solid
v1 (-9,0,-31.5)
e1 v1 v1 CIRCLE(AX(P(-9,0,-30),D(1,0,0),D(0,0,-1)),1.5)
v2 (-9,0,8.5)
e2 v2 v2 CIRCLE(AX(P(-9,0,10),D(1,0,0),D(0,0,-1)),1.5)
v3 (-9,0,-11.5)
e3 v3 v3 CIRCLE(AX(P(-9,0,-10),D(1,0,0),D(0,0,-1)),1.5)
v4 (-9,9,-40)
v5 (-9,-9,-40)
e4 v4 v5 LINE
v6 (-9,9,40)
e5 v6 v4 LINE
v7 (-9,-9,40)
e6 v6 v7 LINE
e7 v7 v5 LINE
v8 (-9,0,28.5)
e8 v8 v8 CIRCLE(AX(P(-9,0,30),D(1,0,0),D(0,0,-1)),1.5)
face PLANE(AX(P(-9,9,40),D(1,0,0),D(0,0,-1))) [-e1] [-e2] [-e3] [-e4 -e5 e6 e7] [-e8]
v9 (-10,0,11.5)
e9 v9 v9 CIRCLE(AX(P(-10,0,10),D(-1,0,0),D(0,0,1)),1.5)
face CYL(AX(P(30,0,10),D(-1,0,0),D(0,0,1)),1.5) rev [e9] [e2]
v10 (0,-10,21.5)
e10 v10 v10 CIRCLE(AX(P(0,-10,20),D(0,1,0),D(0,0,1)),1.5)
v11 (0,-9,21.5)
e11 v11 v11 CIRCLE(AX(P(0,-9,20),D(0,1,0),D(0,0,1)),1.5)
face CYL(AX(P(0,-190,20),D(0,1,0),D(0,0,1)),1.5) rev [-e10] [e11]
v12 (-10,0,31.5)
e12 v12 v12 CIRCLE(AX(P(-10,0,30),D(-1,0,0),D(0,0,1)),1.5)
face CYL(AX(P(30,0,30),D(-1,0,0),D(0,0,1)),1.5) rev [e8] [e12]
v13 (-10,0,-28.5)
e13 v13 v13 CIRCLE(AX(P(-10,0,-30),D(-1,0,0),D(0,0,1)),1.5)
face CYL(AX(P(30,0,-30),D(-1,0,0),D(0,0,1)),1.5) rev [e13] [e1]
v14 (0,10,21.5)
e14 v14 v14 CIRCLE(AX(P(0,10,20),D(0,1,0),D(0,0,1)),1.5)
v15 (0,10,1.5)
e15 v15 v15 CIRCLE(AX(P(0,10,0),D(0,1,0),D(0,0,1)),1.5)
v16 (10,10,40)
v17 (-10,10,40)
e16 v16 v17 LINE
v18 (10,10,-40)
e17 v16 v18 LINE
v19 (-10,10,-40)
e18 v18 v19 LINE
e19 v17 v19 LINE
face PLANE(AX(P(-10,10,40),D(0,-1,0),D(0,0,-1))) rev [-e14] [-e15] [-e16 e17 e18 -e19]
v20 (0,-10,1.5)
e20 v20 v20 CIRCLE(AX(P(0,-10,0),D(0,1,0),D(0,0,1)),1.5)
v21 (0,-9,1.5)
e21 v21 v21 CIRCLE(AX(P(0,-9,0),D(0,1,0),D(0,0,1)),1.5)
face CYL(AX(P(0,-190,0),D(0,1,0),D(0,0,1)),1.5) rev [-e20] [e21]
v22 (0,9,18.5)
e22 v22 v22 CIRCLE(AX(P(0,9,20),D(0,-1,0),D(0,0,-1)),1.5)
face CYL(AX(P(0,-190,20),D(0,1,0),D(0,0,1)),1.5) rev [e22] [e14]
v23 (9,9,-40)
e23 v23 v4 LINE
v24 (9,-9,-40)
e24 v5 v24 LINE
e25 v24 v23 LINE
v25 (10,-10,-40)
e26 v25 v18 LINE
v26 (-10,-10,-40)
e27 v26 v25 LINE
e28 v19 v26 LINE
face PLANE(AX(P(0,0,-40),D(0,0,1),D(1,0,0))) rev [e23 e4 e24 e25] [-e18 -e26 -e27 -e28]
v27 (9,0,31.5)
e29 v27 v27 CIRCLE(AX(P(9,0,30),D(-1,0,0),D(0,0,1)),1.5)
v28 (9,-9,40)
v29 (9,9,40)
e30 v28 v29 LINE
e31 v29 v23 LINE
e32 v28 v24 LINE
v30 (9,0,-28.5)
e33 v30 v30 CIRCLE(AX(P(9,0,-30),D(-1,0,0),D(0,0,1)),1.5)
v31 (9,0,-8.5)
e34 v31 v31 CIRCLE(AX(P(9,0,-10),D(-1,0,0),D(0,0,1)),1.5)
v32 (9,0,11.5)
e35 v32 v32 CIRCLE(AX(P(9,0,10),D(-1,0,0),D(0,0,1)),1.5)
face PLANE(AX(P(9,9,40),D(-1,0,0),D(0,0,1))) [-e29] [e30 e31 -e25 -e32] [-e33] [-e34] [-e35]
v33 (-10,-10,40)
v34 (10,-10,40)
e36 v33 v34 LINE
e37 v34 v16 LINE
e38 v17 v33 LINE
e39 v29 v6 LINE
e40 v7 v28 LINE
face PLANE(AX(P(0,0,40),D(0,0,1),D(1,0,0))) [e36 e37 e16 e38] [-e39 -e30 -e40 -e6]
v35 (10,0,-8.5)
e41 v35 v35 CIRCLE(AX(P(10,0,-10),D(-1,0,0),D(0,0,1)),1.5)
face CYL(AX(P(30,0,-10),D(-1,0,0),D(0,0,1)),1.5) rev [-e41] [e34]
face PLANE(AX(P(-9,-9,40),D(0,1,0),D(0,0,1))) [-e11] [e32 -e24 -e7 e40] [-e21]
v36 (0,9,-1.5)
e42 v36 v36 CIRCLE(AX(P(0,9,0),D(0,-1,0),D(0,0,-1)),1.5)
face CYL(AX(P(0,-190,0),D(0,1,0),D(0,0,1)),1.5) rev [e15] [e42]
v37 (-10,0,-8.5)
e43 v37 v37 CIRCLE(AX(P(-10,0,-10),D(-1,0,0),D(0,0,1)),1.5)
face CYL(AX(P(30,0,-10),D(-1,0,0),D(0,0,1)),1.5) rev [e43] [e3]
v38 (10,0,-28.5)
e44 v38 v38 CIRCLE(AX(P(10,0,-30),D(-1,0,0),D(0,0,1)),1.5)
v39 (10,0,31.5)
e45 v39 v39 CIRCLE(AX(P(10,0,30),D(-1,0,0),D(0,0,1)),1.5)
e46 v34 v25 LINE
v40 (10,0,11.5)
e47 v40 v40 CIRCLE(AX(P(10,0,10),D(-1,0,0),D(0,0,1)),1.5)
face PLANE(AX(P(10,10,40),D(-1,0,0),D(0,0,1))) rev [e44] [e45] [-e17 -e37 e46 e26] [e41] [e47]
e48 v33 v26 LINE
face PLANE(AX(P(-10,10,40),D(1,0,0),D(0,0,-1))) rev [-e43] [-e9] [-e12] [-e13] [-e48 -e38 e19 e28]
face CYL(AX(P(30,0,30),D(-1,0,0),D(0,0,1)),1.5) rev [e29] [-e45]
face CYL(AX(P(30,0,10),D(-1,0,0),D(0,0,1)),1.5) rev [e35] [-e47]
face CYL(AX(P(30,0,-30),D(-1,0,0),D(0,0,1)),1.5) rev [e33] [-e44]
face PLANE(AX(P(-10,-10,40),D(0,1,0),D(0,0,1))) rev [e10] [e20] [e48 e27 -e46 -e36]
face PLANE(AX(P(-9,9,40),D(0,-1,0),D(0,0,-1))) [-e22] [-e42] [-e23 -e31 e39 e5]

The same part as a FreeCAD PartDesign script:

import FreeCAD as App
import Part
import Sketcher
Q = App.Units.Quantity

doc = App.newDocument("Part")
params = doc.addObject("Spreadsheet::Sheet", "Params")
for row, (alias, value) in enumerate([
    ("sketch1_width", "20 mm"),
    ("sketch1_width2", "18 mm"),
    ("pad1_length", "80 mm"),
    ("sketch2_diameter", "3 mm"),
    ("pocket1_length", "200 mm"),
    ("sketch3_diameter", "3 mm"),
    ("pocket2_length", "40 mm"),
], start=1):
    params.set(f"A{row}", alias)
    params.set(f"B{row}", "=" + value)
    params.setAlias(f"B{row}", alias)

body = doc.addObject("PartDesign::Body", "Body")

# Sketch on XY plane
sketch1 = body.newObject("Sketcher::SketchObject", "Sketch")
sketch1.AttachmentSupport = (doc.getObject("XY_Plane"), [""])
sketch1.MapMode = "FlatFace"
sketch1.addGeometry(Part.LineSegment(App.Vector(-10, 10, 0), App.Vector(-10, -10, 0)), False)
sketch1.addGeometry(Part.LineSegment(App.Vector(-10, -10, 0), App.Vector(10, -10, 0)), False)
sketch1.addGeometry(Part.LineSegment(App.Vector(10, -10, 0), App.Vector(10, 10, 0)), False)
sketch1.addGeometry(Part.LineSegment(App.Vector(10, 10, 0), App.Vector(-10, 10, 0)), False)
sketch1.addGeometry(Part.LineSegment(App.Vector(9, -9, 0), App.Vector(-9, -9, 0)), False)
sketch1.addGeometry(Part.LineSegment(App.Vector(-9, -9, 0), App.Vector(-9, 9, 0)), False)
sketch1.addGeometry(Part.LineSegment(App.Vector(-9, 9, 0), App.Vector(9, 9, 0)), False)
sketch1.addGeometry(Part.LineSegment(App.Vector(9, 9, 0), App.Vector(9, -9, 0)), False)
sketch1.addConstraint(Sketcher.Constraint("Coincident", 0, 2, 1, 1))
sketch1.addConstraint(Sketcher.Constraint("Coincident", 1, 2, 2, 1))
sketch1.addConstraint(Sketcher.Constraint("Coincident", 2, 2, 3, 1))
sketch1.addConstraint(Sketcher.Constraint("Coincident", 3, 2, 0, 1))
sketch1.addConstraint(Sketcher.Constraint("Coincident", 4, 2, 5, 1))
sketch1.addConstraint(Sketcher.Constraint("Coincident", 5, 2, 6, 1))
sketch1.addConstraint(Sketcher.Constraint("Coincident", 6, 2, 7, 1))
sketch1.addConstraint(Sketcher.Constraint("Coincident", 7, 2, 4, 1))
sketch1.addConstraint(Sketcher.Constraint("Vertical", 0))
sketch1.addConstraint(Sketcher.Constraint("Horizontal", 1))
sketch1.addConstraint(Sketcher.Constraint("Vertical", 2))
sketch1.addConstraint(Sketcher.Constraint("Horizontal", 3))
sketch1.addConstraint(Sketcher.Constraint("Horizontal", 4))
sketch1.addConstraint(Sketcher.Constraint("Vertical", 5))
sketch1.addConstraint(Sketcher.Constraint("Horizontal", 6))
sketch1.addConstraint(Sketcher.Constraint("Vertical", 7))
sketch1.addConstraint(Sketcher.Constraint("Symmetric", 0, 2, 2, 2, -1, 1))
sketch1.addConstraint(Sketcher.Constraint("Symmetric", 4, 2, 6, 2, -1, 1))
sketch1.addConstraint(Sketcher.Constraint("Equal", 3, 0))
sketch1.addConstraint(Sketcher.Constraint("Equal", 6, 5))
sketch1.addConstraint(Sketcher.Constraint("DistanceX", 1, 1, 1, 2, Q("20 mm")))
sketch1.addConstraint(Sketcher.Constraint("DistanceX", 4, 2, 4, 1, Q("18 mm")))
sketch1.setExpression("Constraints[20]", "Params.sketch1_width")
sketch1.setExpression("Constraints[21]", "Params.sketch1_width2")
pad1 = body.newObject("PartDesign::Pad", "Pad")
pad1.Profile = sketch1
pad1.setExpression("Length", "Params.pad1_length")
pad1.Midplane = True

# Sketch on XZ plane
sketch2 = body.newObject("Sketcher::SketchObject", "Sketch001")
sketch2.AttachmentSupport = (doc.getObject("XZ_Plane"), [""])
sketch2.MapMode = "FlatFace"
sketch2.AttachmentOffset = App.Placement(App.Vector(0, 0, -10), App.Rotation())
sketch2.addGeometry(Part.Circle(App.Vector(0, 20, 0), App.Vector(0, 0, 1), 1.5), False)
sketch2.addGeometry(Part.Circle(App.Vector(0, 0, 0), App.Vector(0, 0, 1), 1.5), False)
sketch2.addConstraint(Sketcher.Constraint("Coincident", 1, 3, -1, 1))
sketch2.addConstraint(Sketcher.Constraint("Equal", 0, 1))
sketch2.addConstraint(Sketcher.Constraint("PointOnObject", 0, 3, -2))
sketch2.addConstraint(Sketcher.Constraint("Diameter", 0, Q("3 mm")))
sketch2.addConstraint(Sketcher.Constraint("DistanceY", -1, 1, 0, 3, Q("20 mm")))
sketch2.setExpression("Constraints[3]", "Params.sketch2_diameter")
pocket1 = body.newObject("PartDesign::Pocket", "Pocket")
pocket1.Profile = sketch2
pocket1.setExpression("Length", "Params.pocket1_length")
pocket1.Reversed = True

# Sketch on YZ plane
sketch3 = body.newObject("Sketcher::SketchObject", "Sketch002")
sketch3.AttachmentSupport = (doc.getObject("YZ_Plane"), [""])
sketch3.MapMode = "FlatFace"
sketch3.AttachmentOffset = App.Placement(App.Vector(0, 0, -10), App.Rotation())
sketch3.addGeometry(Part.Circle(App.Vector(0, 10, 0), App.Vector(0, 0, 1), 1.5), False)
sketch3.addGeometry(Part.Circle(App.Vector(0, -10, 0), App.Vector(0, 0, 1), 1.5), False)
sketch3.addGeometry(Part.Circle(App.Vector(0, 30, 0), App.Vector(0, 0, 1), 1.5), False)
sketch3.addGeometry(Part.Circle(App.Vector(0, -30, 0), App.Vector(0, 0, 1), 1.5), False)
sketch3.addConstraint(Sketcher.Constraint("Equal", 0, 1))
sketch3.addConstraint(Sketcher.Constraint("Equal", 1, 2))
sketch3.addConstraint(Sketcher.Constraint("Equal", 2, 3))
sketch3.addConstraint(Sketcher.Constraint("Symmetric", 0, 3, 1, 3, -1, 1))
sketch3.addConstraint(Sketcher.Constraint("Symmetric", 2, 3, 3, 3, -1, 1))
sketch3.addConstraint(Sketcher.Constraint("PointOnObject", 0, 3, -2))
sketch3.addConstraint(Sketcher.Constraint("PointOnObject", 2, 3, -2))
sketch3.addConstraint(Sketcher.Constraint("Diameter", 0, Q("3 mm")))
sketch3.addConstraint(Sketcher.Constraint("DistanceY", -1, 1, 0, 3, Q("10 mm")))
sketch3.addConstraint(Sketcher.Constraint("DistanceY", -1, 1, 2, 3, Q("30 mm")))
sketch3.setExpression("Constraints[7]", "Params.sketch3_diameter")
pocket2 = body.newObject("PartDesign::Pocket", "Pocket001")
pocket2.Profile = sketch3
pocket2.setExpression("Length", "Params.pocket2_length")
pocket2.Reversed = True

doc.recompute()
